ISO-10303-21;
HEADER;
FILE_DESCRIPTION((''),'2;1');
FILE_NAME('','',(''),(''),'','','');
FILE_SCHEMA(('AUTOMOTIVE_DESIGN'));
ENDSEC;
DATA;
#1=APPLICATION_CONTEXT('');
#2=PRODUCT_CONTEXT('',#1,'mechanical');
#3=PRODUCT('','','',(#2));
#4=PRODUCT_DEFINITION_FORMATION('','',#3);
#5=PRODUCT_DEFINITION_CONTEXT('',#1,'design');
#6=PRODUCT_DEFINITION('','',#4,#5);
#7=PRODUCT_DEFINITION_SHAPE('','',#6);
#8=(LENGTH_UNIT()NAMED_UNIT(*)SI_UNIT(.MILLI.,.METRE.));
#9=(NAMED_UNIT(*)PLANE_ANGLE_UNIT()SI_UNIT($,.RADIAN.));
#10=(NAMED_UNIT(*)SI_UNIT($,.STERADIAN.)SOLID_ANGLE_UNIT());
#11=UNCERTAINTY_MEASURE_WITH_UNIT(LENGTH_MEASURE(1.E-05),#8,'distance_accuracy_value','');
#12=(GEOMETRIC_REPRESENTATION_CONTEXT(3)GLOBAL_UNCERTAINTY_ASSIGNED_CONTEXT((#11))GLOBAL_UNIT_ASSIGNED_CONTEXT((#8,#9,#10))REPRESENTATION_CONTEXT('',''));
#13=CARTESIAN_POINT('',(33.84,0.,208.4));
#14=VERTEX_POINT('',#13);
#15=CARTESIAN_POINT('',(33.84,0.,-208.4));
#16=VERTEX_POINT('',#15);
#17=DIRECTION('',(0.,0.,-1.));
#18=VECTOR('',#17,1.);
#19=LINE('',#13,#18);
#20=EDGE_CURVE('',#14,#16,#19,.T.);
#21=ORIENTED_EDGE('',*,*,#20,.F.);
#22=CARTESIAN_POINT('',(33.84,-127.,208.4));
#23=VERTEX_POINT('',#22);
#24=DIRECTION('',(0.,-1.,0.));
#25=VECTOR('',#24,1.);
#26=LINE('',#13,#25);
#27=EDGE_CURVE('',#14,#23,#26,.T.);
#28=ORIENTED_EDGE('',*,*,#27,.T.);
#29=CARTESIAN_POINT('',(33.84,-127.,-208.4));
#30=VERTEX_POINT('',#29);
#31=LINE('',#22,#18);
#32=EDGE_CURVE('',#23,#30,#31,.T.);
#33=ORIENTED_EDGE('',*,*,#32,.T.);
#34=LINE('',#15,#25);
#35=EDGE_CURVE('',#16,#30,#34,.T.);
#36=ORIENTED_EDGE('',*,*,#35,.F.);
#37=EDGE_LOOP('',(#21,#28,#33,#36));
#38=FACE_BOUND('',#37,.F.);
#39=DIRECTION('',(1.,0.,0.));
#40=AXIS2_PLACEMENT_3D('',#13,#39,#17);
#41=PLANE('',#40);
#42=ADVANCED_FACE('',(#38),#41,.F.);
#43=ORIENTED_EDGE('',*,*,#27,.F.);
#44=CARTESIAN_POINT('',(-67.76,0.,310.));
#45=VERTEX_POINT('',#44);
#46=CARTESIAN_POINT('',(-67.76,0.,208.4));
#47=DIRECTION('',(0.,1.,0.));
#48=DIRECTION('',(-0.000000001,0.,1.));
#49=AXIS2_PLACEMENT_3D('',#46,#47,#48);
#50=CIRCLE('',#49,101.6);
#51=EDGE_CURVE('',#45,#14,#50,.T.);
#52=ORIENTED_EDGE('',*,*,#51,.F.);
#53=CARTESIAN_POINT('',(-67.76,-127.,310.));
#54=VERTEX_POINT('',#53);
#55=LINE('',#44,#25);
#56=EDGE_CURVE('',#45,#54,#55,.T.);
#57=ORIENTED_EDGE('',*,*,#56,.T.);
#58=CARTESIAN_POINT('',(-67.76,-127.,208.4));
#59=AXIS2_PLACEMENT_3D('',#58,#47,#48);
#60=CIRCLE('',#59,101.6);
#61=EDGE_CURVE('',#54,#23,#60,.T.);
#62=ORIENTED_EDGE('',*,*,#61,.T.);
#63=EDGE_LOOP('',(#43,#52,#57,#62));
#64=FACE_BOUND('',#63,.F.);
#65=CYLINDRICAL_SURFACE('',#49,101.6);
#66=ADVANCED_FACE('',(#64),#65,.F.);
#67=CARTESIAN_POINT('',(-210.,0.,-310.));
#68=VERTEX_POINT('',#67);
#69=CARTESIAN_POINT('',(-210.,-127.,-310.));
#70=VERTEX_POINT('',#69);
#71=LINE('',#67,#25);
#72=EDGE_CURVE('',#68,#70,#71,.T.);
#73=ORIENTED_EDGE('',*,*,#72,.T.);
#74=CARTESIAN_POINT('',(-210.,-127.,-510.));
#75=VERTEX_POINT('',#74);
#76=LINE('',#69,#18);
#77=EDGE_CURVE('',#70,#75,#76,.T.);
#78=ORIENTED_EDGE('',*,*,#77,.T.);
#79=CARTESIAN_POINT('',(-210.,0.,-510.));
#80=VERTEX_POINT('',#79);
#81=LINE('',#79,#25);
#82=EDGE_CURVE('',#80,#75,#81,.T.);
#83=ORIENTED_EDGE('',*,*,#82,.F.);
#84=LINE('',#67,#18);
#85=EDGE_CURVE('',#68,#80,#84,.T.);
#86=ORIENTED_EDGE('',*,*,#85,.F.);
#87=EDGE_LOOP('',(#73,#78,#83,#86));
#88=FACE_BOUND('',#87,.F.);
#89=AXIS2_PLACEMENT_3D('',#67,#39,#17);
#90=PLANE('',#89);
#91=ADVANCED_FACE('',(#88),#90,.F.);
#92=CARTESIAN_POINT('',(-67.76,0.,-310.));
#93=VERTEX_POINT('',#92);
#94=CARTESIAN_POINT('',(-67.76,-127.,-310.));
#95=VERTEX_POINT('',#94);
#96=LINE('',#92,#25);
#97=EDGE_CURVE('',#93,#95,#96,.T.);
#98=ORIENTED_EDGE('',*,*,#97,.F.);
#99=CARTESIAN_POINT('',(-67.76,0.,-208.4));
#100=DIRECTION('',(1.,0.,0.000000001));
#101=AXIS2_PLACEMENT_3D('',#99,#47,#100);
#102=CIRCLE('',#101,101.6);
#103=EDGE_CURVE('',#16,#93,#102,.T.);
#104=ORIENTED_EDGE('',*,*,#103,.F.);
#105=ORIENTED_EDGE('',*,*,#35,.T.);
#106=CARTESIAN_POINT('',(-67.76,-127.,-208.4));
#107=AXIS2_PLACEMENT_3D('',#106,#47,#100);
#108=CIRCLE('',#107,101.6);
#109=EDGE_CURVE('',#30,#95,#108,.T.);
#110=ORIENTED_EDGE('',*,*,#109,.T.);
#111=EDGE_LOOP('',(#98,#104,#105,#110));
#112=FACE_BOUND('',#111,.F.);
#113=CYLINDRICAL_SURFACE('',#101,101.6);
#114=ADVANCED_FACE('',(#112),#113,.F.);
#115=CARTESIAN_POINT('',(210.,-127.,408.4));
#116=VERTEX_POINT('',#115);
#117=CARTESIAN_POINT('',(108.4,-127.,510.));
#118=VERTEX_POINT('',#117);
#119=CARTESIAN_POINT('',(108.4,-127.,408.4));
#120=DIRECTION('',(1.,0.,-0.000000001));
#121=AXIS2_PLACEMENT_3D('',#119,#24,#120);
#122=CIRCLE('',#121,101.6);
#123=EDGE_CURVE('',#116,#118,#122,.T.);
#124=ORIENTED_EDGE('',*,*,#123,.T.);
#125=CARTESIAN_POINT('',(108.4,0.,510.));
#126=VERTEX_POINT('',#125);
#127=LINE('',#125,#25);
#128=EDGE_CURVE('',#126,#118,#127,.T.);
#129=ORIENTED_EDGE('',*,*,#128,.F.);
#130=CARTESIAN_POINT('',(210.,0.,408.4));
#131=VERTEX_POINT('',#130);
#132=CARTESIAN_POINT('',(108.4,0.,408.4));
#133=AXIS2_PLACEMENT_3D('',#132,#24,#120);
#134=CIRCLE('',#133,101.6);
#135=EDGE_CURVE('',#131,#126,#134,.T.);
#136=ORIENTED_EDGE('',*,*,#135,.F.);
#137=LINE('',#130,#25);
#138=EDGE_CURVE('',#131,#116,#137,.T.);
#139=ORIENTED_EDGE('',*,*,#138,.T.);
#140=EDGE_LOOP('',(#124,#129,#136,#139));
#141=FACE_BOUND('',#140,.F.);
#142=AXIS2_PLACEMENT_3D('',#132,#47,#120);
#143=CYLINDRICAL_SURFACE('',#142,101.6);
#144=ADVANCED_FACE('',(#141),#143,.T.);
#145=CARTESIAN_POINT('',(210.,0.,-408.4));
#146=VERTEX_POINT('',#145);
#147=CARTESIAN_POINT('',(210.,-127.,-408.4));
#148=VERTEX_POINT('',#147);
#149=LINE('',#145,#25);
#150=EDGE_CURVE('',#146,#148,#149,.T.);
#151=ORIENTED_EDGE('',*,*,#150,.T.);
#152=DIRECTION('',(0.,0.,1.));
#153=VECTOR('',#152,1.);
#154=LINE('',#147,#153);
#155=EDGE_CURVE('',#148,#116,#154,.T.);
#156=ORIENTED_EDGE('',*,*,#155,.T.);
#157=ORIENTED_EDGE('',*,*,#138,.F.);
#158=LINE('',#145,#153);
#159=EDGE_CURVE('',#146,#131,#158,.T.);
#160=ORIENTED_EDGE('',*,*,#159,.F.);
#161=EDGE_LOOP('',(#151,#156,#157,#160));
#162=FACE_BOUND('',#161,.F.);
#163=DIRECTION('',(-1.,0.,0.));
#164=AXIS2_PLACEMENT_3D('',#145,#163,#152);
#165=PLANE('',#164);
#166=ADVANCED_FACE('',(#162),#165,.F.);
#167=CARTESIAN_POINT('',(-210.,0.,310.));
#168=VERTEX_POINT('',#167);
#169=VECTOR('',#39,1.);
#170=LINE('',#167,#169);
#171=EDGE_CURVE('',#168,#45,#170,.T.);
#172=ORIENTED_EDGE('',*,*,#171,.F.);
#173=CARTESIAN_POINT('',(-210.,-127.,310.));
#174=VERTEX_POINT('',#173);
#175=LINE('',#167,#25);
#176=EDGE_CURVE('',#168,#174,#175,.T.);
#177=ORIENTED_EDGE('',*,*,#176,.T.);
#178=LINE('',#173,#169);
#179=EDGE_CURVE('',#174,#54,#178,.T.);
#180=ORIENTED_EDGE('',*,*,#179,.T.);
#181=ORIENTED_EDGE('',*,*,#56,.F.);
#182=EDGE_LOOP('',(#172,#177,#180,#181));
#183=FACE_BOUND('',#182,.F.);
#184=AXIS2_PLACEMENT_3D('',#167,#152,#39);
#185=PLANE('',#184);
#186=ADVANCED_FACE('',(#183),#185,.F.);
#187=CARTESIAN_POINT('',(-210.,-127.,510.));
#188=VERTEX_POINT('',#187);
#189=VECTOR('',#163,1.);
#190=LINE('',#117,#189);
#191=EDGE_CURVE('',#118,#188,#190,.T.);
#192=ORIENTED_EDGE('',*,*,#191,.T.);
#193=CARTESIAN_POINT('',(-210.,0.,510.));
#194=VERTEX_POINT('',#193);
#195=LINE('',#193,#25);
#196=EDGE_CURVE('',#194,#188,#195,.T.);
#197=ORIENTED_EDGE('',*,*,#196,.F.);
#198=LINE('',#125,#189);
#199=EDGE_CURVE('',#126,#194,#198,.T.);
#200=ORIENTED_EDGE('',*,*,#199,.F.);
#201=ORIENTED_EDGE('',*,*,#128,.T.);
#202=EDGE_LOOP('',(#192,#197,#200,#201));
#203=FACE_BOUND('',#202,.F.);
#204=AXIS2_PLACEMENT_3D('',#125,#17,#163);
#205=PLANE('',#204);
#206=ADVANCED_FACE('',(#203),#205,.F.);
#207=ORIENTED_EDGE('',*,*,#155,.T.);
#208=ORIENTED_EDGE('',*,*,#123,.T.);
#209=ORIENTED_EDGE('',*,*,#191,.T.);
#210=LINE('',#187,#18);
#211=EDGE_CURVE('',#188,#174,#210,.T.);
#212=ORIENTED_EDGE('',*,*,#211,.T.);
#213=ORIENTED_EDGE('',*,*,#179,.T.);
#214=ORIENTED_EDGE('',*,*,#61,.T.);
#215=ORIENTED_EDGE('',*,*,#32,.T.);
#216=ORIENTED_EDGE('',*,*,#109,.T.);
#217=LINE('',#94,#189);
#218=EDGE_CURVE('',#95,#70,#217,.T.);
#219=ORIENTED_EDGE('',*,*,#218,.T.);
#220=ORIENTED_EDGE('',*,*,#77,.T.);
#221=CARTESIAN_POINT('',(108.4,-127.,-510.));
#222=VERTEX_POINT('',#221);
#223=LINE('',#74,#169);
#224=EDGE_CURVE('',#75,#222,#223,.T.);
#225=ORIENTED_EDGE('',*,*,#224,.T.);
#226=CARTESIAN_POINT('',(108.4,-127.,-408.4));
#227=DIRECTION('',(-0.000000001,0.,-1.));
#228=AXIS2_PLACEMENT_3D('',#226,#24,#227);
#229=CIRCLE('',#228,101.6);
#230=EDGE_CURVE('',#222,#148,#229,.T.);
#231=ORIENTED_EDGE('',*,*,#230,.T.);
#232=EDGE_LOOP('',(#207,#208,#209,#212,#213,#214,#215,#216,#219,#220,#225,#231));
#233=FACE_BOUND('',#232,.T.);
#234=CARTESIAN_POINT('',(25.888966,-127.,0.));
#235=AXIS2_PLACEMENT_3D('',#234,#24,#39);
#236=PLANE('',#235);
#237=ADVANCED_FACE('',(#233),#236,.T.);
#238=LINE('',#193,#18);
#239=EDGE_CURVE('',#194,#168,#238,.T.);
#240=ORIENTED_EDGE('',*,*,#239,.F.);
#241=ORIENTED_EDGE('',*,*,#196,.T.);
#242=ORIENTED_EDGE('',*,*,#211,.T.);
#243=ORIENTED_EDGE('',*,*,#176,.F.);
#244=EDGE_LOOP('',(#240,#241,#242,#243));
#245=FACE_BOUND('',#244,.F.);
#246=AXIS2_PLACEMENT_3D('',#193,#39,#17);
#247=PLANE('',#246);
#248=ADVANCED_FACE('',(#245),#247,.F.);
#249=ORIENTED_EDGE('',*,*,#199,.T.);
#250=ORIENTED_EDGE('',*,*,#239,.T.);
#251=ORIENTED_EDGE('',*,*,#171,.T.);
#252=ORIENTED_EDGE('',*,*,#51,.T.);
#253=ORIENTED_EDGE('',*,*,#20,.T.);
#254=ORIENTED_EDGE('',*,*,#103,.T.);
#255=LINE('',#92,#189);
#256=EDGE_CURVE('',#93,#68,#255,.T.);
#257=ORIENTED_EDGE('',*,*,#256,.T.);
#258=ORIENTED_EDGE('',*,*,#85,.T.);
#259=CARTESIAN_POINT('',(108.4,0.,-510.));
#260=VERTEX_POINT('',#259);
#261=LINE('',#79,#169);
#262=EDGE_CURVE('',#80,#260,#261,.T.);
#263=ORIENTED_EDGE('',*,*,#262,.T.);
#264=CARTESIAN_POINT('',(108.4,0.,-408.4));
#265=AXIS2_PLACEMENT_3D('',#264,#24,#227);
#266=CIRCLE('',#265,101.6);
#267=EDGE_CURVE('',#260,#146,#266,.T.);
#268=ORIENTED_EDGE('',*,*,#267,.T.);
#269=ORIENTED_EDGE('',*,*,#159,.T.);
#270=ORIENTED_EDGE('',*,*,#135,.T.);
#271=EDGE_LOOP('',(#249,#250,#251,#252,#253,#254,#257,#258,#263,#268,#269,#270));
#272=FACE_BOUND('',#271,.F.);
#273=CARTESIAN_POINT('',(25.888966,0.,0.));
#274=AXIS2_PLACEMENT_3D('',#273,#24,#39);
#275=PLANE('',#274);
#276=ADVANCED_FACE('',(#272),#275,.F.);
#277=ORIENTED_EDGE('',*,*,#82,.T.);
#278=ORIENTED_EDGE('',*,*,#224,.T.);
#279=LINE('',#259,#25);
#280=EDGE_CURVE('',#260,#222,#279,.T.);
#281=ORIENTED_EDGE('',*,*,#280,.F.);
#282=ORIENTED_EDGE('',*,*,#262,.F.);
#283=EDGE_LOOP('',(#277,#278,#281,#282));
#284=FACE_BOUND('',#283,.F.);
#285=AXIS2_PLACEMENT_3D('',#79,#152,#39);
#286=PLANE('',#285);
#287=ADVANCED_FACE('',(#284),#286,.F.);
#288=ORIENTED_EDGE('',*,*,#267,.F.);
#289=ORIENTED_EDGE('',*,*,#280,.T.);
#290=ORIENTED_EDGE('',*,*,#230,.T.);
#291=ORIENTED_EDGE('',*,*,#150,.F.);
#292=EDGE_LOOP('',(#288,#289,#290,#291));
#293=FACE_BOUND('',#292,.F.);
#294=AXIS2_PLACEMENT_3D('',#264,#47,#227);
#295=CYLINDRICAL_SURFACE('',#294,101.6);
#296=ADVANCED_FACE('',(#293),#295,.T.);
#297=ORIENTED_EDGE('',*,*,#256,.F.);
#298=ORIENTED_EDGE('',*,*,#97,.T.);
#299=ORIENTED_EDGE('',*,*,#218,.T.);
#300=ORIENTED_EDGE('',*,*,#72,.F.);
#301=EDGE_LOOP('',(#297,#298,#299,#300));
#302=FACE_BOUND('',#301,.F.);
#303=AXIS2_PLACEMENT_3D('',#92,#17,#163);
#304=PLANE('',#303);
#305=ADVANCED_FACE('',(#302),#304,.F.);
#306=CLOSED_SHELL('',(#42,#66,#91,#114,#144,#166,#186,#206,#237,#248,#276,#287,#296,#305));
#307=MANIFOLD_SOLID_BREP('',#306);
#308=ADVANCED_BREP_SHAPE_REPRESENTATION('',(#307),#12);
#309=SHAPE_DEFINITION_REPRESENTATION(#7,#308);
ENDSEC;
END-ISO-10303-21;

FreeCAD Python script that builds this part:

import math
import FreeCAD as App
import Part
import Sketcher

doc = App.newDocument("Part")
body = doc.addObject("PartDesign::Body", "Body")

# Sketch on XZ plane
sketch1 = body.newObject("Sketcher::SketchObject", "Sketch")
sketch1.AttachmentSupport = (doc.getObject("XZ_Plane"), [""])
sketch1.MapMode = "FlatFace"
sketch1.addGeometry([
    Part.ArcOfCircle(Part.Circle(App.Vector(108, 408, 0), App.Vector(0, 0, 1), 102), math.radians(0), math.radians(90)),  # 0
    Part.LineSegment(App.Vector(108, 510, 0), App.Vector(-210, 510, 0)),  # 1
    Part.LineSegment(App.Vector(-210, 510, 0), App.Vector(-210, 310, 0)),  # 2
    Part.LineSegment(App.Vector(-210, 310, 0), App.Vector(-68, 310, 0)),  # 3
    Part.ArcOfCircle(Part.Circle(App.Vector(-68, 208, 0), App.Vector(0, 0, 1), 102), math.radians(0), math.radians(90)),  # 4
    Part.LineSegment(App.Vector(34, 208, 0), App.Vector(34, -208, 0)),  # 5
    Part.ArcOfCircle(Part.Circle(App.Vector(-68, -208, 0), App.Vector(0, 0, 1), 102), math.radians(-90), math.radians(0)),  # 6
    Part.LineSegment(App.Vector(-68, -310, 0), App.Vector(-210, -310, 0)),  # 7
    Part.LineSegment(App.Vector(-210, -310, 0), App.Vector(-210, -510, 0)),  # 8
    Part.LineSegment(App.Vector(-210, -510, 0), App.Vector(108, -510, 0)),  # 9
    Part.ArcOfCircle(Part.Circle(App.Vector(108, -408, 0), App.Vector(0, 0, 1), 102), math.radians(-90), math.radians(0)),  # 10
    Part.LineSegment(App.Vector(210, -408, 0), App.Vector(210, 408, 0)),  # 11
], False)
sketch1.addConstraint([
    Sketcher.Constraint("Tangent", 0, 2, 1, 1),
    Sketcher.Constraint("Coincident", 1, 2, 2, 1),
    Sketcher.Constraint("Coincident", 2, 2, 3, 1),
    Sketcher.Constraint("Tangent", 3, 2, 4, 2),
    Sketcher.Constraint("Tangent", 4, 1, 5, 1),
    Sketcher.Constraint("Tangent", 5, 2, 6, 2),
    Sketcher.Constraint("Tangent", 6, 1, 7, 1),
    Sketcher.Constraint("Coincident", 7, 2, 8, 1),
    Sketcher.Constraint("Coincident", 8, 2, 9, 1),
    Sketcher.Constraint("Tangent", 9, 2, 10, 1),
    Sketcher.Constraint("Tangent", 10, 2, 11, 1),
    Sketcher.Constraint("Tangent", 11, 2, 0, 1),
    Sketcher.Constraint("Horizontal", 1),
    Sketcher.Constraint("Vertical", 2),
    Sketcher.Constraint("Horizontal", 3),
    Sketcher.Constraint("Vertical", 5),
    Sketcher.Constraint("Horizontal", 7),
    Sketcher.Constraint("Vertical", 8),
    Sketcher.Constraint("Horizontal", 9),
    Sketcher.Constraint("Vertical", 11),
    Sketcher.Constraint("Equal", 0, 4),
    Sketcher.Constraint("Equal", 4, 6),
    Sketcher.Constraint("Equal", 6, 10),
    Sketcher.Constraint("Symmetric", 2, 2, 7, 2, -1),
    Sketcher.Constraint("Equal", 2, 8),
    Sketcher.Constraint("Radius", 0, 101.6),
    Sketcher.Constraint("DistanceY", 2, 2, 2, 1, 200.0),
    Sketcher.Constraint("DistanceX", 1, 2, 1, 1, 318.4),
    Sketcher.Constraint("DistanceY", 5, 2, 5, 1, 416.8),
    Sketcher.Constraint("DistanceX", 1, 2, -1, 1, 210.0),
    Sketcher.Constraint("DistanceX", 3, 1, 3, 2, 142.24),
])
pad1 = body.newObject("PartDesign::Pad", "Pad")
pad1.Profile = sketch1
pad1.Length = 127

doc.recompute()
